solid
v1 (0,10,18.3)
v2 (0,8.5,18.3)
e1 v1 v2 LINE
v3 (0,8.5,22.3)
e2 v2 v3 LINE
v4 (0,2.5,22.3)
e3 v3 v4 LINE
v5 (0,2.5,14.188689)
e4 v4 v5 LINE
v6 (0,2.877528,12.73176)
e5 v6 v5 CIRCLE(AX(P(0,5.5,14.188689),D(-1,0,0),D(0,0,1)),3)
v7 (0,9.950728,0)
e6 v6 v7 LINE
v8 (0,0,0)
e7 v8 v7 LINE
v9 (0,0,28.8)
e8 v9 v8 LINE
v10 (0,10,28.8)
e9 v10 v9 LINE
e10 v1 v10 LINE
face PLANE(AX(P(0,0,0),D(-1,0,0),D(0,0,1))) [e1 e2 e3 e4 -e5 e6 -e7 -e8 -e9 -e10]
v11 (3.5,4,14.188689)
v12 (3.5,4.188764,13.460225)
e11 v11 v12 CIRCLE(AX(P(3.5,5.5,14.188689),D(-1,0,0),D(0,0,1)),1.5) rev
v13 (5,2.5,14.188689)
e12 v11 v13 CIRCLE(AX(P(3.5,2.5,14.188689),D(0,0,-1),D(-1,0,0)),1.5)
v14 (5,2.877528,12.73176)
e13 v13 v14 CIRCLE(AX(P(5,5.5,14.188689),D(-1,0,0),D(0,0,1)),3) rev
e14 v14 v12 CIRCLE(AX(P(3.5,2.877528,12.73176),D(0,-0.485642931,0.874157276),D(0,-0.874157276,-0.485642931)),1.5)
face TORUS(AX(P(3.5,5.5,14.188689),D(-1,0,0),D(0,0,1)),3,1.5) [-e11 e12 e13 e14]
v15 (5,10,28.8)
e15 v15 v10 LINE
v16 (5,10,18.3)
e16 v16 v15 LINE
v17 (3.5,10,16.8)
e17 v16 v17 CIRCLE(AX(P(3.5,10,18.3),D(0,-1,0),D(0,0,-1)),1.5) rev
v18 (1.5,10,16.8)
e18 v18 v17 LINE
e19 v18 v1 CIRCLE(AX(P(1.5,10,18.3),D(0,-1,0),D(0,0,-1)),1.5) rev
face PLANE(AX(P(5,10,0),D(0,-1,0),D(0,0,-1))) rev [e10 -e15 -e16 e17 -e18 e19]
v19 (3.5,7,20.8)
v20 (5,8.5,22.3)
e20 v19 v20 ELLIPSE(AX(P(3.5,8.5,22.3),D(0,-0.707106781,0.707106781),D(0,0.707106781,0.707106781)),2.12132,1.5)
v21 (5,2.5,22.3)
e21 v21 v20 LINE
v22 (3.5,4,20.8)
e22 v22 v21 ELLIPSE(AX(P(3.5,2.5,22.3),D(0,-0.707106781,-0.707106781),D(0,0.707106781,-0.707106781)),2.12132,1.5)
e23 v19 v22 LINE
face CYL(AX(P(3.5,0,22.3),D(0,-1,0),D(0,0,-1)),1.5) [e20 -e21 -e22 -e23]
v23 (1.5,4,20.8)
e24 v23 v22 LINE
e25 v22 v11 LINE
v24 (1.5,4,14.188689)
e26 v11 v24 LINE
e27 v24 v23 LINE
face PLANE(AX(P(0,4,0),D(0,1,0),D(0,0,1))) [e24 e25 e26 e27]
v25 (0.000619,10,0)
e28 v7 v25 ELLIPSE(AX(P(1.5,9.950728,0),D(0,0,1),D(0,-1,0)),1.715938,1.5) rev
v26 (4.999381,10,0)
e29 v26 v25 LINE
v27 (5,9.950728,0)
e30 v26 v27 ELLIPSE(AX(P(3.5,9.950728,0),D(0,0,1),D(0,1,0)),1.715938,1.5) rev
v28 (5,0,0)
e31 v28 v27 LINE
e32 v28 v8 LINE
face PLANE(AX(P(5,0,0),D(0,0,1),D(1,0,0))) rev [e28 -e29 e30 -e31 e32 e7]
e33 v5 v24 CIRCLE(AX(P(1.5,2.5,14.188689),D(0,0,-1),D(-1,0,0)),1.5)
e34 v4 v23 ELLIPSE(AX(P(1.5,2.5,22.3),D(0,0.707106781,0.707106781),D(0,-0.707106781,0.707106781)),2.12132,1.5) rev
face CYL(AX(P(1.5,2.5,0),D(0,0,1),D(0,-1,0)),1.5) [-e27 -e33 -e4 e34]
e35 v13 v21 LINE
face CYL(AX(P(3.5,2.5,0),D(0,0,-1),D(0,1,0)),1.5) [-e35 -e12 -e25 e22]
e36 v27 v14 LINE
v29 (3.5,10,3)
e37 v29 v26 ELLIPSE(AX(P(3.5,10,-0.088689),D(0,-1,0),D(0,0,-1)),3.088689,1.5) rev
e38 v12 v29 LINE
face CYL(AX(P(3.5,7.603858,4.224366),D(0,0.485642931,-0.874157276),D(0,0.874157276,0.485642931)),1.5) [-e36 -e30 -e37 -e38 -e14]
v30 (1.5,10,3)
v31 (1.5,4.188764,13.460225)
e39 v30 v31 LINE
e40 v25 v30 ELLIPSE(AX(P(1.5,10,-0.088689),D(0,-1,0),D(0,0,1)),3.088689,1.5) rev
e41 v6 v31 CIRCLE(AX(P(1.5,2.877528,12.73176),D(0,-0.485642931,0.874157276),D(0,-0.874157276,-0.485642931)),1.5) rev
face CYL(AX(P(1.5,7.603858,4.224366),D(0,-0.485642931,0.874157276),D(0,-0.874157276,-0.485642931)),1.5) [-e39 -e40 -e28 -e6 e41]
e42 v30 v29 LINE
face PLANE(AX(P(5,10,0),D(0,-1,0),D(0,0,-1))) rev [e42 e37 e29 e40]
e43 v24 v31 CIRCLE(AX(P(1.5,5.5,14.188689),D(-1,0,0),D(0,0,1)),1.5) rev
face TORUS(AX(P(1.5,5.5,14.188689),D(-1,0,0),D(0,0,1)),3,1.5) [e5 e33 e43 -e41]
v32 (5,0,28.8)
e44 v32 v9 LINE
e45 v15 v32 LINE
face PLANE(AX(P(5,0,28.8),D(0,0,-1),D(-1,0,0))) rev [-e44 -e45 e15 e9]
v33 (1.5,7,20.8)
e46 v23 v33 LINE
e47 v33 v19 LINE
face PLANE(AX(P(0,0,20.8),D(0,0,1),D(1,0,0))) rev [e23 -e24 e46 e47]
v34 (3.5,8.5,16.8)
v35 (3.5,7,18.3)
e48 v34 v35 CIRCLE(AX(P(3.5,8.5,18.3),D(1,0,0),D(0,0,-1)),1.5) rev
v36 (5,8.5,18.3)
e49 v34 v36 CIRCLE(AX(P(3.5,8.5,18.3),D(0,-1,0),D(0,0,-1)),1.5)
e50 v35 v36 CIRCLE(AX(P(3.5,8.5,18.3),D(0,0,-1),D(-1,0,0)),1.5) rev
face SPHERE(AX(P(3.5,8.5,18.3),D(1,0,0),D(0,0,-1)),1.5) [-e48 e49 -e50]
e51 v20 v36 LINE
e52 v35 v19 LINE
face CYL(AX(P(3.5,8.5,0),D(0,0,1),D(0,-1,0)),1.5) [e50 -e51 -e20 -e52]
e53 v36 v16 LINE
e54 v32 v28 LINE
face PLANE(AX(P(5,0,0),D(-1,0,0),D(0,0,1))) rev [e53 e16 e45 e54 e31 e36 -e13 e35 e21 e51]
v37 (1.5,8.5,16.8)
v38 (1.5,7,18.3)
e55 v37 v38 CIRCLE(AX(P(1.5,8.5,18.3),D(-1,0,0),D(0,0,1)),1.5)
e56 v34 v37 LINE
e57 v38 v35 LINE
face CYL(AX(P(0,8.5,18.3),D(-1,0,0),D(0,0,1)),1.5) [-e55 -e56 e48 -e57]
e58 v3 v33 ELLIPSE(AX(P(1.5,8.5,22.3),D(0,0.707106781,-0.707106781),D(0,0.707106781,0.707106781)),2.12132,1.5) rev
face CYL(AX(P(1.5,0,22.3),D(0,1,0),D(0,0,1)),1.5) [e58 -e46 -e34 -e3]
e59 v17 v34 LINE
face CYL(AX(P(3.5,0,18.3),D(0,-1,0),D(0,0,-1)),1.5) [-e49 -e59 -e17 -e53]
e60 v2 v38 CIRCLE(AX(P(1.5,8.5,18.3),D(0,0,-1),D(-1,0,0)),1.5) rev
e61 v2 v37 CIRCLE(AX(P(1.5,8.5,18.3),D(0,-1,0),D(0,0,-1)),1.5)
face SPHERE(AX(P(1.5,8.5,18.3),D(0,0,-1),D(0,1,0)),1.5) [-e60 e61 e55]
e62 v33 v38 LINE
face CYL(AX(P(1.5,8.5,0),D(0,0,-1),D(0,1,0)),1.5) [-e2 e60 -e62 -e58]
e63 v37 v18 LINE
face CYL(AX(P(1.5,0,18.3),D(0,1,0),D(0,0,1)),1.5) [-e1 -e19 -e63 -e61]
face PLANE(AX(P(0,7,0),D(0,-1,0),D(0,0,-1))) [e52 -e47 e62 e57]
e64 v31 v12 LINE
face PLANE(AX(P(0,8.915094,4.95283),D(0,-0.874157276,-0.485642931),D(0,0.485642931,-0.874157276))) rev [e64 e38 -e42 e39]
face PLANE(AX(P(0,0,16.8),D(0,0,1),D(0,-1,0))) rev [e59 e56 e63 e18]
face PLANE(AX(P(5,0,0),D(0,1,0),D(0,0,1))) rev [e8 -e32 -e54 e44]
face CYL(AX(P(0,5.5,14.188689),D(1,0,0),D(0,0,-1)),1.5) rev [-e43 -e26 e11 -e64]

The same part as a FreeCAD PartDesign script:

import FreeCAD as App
import Part
import Sketcher

V = App.Vector
Q = App.Units.Quantity


def edges_at(feature, points):
    """Names of the edges that pass closest to the given points."""
    edges = feature.Shape.Edges
    near = lambda p: min(range(len(edges)), key=lambda i: edges[i].distToShape(Part.Vertex(*p))[0])
    return sorted({f"Edge{near(p) + 1}" for p in points})

doc = App.newDocument("Part")
body = doc.addObject("PartDesign::Body", "Body")

# Sketch on YZ plane
sketch1 = body.newObject("Sketcher::SketchObject", "Sketch")
sketch1.AttachmentSupport = (doc.getObject("YZ_Plane"), [""])
sketch1.MapMode = "FlatFace"
sketch1.addGeometry(Part.LineSegment(V(0, 29, 0), V(0, 0, 0)), False)
sketch1.addGeometry(Part.LineSegment(V(0, 0, 0), V(10, 0, 0)), False)
sketch1.addGeometry(Part.LineSegment(V(10, 0, 0), V(10, 29, 0)), False)
sketch1.addGeometry(Part.LineSegment(V(10, 29, 0), V(0, 29, 0)), False)
sketch1.addConstraint(Sketcher.Constraint("Coincident", 0, 2, 1, 1))
sketch1.addConstraint(Sketcher.Constraint("Coincident", 1, 2, 2, 1))
sketch1.addConstraint(Sketcher.Constraint("Coincident", 2, 2, 3, 1))
sketch1.addConstraint(Sketcher.Constraint("Coincident", 3, 2, 0, 1))
sketch1.addConstraint(Sketcher.Constraint("Vertical", 0))
sketch1.addConstraint(Sketcher.Constraint("Horizontal", 1))
sketch1.addConstraint(Sketcher.Constraint("Vertical", 2))
sketch1.addConstraint(Sketcher.Constraint("Horizontal", 3))
sketch1.addConstraint(Sketcher.Constraint("Coincident", 0, 2, -1, 1))
sketch1.addConstraint(Sketcher.Constraint("DistanceX", 1, 1, 1, 2, Q("10 mm")))
sketch1.addConstraint(Sketcher.Constraint("DistanceY", 0, 2, 0, 1, Q("28.8 mm")))
pad1 = body.newObject("PartDesign::Pad", "Pad")
pad1.Profile = sketch1
pad1.Length = 5

# Sketch on YZ plane
sketch2 = body.newObject("Sketcher::SketchObject", "Sketch001")
sketch2.AttachmentSupport = (doc.getObject("YZ_Plane"), [""])
sketch2.MapMode = "FlatFace"
sketch2.AttachmentOffset = App.Placement(V(0, 0, 5), App.Rotation())
sketch2.addGeometry(Part.LineSegment(V(4, 20.8, 0), V(4, 13.8, 0)), False)
sketch2.addGeometry(Part.LineSegment(V(4, 13.8, 0), V(10, 3, 0)), False)
sketch2.addGeometry(Part.LineSegment(V(10, 3, 0), V(10, 16.8, 0)), False)
sketch2.addGeometry(Part.LineSegment(V(10, 16.8, 0), V(7, 16.8, 0)), False)
sketch2.addGeometry(Part.LineSegment(V(7, 16.8, 0), V(7, 20.8, 0)), False)
sketch2.addGeometry(Part.LineSegment(V(7, 20.8, 0), V(4, 20.8, 0)), False)
sketch2.addConstraint(Sketcher.Constraint("Coincident", 0, 2, 1, 1))
sketch2.addConstraint(Sketcher.Constraint("Coincident", 1, 2, 2, 1))
sketch2.addConstraint(Sketcher.Constraint("Coincident", 2, 2, 3, 1))
sketch2.addConstraint(Sketcher.Constraint("Coincident", 3, 2, 4, 1))
sketch2.addConstraint(Sketcher.Constraint("Coincident", 4, 2, 5, 1))
sketch2.addConstraint(Sketcher.Constraint("Coincident", 5, 2, 0, 1))
sketch2.addConstraint(Sketcher.Constraint("Vertical", 0))
sketch2.addConstraint(Sketcher.Constraint("Vertical", 2))
sketch2.addConstraint(Sketcher.Constraint("Horizontal", 3))
sketch2.addConstraint(Sketcher.Constraint("Vertical", 4))
sketch2.addConstraint(Sketcher.Constraint("Horizontal", 5))
sketch2.addConstraint(Sketcher.Constraint("Equal", 3, 5))
sketch2.addConstraint(Sketcher.Constraint("DistanceX", 3, 2, 3, 1, Q("3 mm")))
sketch2.addConstraint(Sketcher.Constraint("DistanceY", 0, 2, 0, 1, Q("7 mm")))
sketch2.addConstraint(Sketcher.Constraint("DistanceY", 4, 1, 4, 2, Q("4 mm")))
sketch2.addConstraint(Sketcher.Constraint("DistanceY", 2, 1, 2, 2, Q("13.8 mm")))
sketch2.addConstraint(Sketcher.Constraint("DistanceX", -1, 1, 0, 2, Q("4 mm")))
sketch2.addConstraint(Sketcher.Constraint("DistanceY", -1, 1, 1, 2, Q("3 mm")))
pocket1 = body.newObject("PartDesign::Pocket", "Pocket")
pocket1.Profile = sketch2
pocket1.Type = "ThroughAll"
doc.recompute()

fillet = body.newObject("PartDesign::Fillet", "Fillet")
fillet.Base = (pocket1, edges_at(pocket1, [
    (5, 4, 17.3),
    (2.5, 4, 13.8),
    (0, 5.5, 20.8),
    (5, 7, 18.8),
    (0, 8.5, 16.8),
    (2.5, 7, 16.8),
    (0, 7, 8.4),
    (0, 4, 17.3),
    (0, 7, 18.8),
    (5, 7, 8.4),
    (5, 8.5, 16.8),
    (5, 5.5, 20.8),
]))
fillet.Radius = 1.5

doc.recompute()
